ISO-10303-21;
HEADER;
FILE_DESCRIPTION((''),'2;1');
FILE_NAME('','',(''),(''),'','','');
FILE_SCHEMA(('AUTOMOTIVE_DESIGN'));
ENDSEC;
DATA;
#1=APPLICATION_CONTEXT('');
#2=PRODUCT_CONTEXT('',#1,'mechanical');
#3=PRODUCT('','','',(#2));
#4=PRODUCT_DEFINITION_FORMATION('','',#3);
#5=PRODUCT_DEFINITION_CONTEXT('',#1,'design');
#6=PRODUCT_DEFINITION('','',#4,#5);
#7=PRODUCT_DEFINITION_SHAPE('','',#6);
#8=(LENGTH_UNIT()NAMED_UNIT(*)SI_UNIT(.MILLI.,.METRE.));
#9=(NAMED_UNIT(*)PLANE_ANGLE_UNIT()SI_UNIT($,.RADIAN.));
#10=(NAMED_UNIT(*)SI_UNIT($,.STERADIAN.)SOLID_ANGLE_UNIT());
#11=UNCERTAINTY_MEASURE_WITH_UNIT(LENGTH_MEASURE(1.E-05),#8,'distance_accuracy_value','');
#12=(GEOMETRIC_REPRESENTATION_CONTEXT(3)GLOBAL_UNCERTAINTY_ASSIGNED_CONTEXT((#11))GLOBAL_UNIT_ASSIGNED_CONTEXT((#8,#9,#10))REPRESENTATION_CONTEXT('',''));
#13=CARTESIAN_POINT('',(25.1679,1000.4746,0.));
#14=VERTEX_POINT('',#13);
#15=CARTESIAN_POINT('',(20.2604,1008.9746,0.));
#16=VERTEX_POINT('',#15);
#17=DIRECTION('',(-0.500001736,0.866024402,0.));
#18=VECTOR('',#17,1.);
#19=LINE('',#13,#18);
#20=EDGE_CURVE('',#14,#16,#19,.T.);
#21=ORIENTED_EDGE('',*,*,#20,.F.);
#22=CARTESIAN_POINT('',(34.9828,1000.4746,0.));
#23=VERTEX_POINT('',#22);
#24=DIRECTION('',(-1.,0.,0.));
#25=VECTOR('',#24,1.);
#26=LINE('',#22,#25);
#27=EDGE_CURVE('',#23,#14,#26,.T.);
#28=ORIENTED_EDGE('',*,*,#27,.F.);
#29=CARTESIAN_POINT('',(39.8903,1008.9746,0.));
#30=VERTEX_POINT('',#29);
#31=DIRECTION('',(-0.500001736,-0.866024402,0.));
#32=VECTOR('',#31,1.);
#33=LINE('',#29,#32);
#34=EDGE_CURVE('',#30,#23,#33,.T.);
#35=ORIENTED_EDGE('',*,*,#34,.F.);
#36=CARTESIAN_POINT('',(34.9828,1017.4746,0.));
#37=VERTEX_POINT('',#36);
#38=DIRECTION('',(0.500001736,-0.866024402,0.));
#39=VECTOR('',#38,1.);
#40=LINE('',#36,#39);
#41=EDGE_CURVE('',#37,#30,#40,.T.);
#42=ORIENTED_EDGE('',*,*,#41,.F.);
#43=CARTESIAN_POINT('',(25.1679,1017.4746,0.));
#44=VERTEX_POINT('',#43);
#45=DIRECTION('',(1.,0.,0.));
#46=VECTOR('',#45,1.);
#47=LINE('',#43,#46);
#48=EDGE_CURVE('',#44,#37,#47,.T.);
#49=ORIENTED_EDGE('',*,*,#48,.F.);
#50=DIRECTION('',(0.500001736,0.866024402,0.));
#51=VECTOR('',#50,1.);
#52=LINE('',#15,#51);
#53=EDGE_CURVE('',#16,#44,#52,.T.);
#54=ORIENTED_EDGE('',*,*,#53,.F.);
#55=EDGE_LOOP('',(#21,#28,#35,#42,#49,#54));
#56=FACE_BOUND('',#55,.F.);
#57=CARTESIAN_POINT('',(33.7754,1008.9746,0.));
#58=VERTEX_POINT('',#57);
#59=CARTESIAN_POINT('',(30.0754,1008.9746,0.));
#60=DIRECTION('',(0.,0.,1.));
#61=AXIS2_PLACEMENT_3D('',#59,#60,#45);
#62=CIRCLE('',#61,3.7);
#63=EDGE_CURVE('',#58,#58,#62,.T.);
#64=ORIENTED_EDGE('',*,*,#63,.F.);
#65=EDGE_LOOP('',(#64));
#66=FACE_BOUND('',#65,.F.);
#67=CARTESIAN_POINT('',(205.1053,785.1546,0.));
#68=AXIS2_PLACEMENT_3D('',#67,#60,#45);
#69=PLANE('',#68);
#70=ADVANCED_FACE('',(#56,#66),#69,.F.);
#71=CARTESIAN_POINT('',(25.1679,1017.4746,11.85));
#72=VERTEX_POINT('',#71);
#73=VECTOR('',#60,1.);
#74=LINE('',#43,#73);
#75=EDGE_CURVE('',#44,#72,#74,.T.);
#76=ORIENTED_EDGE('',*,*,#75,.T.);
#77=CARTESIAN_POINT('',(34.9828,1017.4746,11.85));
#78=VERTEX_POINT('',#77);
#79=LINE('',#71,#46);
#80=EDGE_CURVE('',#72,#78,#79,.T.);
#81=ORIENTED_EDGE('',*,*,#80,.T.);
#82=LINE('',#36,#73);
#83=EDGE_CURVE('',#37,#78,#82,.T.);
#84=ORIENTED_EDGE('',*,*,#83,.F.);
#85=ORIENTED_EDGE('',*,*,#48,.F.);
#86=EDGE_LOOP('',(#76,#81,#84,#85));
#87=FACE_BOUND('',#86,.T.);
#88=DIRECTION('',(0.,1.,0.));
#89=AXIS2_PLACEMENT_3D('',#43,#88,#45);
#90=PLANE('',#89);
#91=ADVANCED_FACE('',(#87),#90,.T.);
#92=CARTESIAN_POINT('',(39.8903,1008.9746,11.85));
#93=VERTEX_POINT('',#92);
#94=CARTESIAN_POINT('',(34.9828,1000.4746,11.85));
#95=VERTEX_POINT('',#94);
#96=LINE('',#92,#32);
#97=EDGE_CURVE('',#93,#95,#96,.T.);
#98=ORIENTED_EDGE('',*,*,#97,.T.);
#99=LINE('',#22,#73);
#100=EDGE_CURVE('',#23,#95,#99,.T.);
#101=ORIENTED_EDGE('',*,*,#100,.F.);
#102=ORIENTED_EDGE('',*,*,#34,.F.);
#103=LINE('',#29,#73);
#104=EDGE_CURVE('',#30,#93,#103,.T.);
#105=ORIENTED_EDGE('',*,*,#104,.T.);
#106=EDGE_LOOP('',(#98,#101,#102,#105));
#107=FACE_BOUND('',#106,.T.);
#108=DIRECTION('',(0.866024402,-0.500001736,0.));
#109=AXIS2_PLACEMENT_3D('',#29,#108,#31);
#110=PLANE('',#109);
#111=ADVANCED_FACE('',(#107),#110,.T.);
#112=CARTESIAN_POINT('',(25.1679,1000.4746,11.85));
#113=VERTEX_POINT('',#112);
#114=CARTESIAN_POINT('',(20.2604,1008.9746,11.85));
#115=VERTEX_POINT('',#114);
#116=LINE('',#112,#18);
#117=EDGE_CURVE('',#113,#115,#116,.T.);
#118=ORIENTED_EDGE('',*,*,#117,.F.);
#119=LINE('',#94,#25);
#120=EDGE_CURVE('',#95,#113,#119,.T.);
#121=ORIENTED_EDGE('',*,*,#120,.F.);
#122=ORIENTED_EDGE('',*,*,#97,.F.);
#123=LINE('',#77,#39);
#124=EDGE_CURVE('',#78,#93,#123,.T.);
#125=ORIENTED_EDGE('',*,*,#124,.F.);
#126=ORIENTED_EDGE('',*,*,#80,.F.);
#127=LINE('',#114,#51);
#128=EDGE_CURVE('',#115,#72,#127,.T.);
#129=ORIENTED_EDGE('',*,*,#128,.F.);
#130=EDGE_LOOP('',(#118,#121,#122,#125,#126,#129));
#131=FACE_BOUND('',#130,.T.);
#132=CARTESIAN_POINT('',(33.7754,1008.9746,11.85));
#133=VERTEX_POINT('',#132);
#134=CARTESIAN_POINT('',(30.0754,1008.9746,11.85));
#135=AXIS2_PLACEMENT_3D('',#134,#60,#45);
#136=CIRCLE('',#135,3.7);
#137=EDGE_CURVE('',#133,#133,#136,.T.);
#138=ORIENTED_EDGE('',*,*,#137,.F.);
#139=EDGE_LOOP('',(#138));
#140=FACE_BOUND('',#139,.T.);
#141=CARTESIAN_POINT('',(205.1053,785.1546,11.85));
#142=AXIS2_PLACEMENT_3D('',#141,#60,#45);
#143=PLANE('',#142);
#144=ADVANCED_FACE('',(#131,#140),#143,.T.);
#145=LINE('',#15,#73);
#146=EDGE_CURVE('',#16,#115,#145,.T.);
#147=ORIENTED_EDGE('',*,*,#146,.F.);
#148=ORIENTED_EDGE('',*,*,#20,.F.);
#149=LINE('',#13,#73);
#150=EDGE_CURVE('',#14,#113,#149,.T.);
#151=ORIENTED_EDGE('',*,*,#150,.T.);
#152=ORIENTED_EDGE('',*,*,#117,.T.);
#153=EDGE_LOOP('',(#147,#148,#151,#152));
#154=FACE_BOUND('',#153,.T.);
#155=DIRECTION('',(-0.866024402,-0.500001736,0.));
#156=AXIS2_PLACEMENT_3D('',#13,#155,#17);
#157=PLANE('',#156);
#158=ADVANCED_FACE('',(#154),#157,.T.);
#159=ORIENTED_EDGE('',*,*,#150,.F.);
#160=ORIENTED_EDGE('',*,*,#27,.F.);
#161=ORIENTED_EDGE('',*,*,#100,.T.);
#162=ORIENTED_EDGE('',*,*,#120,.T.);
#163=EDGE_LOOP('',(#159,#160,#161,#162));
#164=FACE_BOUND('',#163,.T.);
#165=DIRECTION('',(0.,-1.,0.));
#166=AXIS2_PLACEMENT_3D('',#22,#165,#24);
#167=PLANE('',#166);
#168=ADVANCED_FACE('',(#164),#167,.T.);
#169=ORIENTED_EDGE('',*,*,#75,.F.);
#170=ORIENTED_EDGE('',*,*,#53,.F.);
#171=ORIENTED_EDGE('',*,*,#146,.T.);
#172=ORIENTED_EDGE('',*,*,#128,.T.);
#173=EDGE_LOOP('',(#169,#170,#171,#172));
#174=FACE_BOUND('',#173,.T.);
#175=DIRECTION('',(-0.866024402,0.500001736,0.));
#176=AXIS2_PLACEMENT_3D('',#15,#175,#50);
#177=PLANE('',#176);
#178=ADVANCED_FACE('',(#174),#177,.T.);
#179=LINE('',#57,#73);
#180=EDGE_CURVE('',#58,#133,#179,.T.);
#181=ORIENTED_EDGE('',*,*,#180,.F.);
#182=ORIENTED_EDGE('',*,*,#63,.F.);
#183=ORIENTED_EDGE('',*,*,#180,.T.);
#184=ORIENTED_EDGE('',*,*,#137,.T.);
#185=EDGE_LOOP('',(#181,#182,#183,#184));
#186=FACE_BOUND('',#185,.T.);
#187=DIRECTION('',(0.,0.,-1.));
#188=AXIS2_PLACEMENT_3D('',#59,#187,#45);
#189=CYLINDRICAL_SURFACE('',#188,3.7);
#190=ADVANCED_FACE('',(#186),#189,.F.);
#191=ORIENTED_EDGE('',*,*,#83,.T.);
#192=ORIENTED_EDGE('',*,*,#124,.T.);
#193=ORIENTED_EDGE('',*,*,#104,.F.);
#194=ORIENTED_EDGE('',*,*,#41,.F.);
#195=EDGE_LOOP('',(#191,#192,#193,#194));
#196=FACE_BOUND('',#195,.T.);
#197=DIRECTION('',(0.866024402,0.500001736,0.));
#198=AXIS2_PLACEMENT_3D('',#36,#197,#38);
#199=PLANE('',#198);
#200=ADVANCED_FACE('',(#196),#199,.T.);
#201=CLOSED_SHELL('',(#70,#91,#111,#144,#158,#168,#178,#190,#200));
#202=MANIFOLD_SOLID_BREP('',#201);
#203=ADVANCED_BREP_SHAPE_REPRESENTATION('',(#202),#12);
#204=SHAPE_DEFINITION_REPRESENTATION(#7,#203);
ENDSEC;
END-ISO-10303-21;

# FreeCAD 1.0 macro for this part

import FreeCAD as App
import Part
import Sketcher
from FreeCAD import Vector
Q = App.Units.Quantity


def add_polygon(sketch, points):
    """Adds a closed chain of lines whose ends are joined by coincident constraints."""
    first, n = sketch.GeometryCount, len(points)
    for a, b in zip(points, points[1:] + points[:1]):
        sketch.addGeometry(Part.LineSegment(App.Vector(*a, 0), App.Vector(*b, 0)), False)
    for i in range(n):
        sketch.addConstraint(Sketcher.Constraint("Coincident", first + i, 2, first + (i + 1) % n, 1))

doc = App.newDocument("Part")
body = doc.addObject("PartDesign::Body", "Body")

# Sketch on XY plane
sketch1 = doc.addObject("Sketcher::SketchObject", "Sketch")
body.addObject(sketch1)
sketch1.AttachmentSupport = (doc.XY_Plane, [""])
sketch1.MapMode = "FlatFace"
add_polygon(sketch1, [(25.1679, 1017.4746), (20.2604, 1008.9746), (25.1679, 1000.4746), (34.9828, 1000.4746), (39.8903, 1008.9746), (34.9828, 1017.4746)])  # lines 0-5
sketch1.addGeometry(Part.Circle(Vector(30.0754, 1008.9746, 0), Vector(0, 0, 1), 3.7), False)  # 6
sketch1.addConstraint(Sketcher.Constraint("Horizontal", 2))
sketch1.addConstraint(Sketcher.Constraint("Horizontal", 5))
sketch1.addConstraint(Sketcher.Constraint("Parallel", 0, 3))
sketch1.addConstraint(Sketcher.Constraint("Parallel", 1, 4))
sketch1.addConstraint(Sketcher.Constraint("Horizontal", 6, 3, 0, 2))
sketch1.addConstraint(Sketcher.Constraint("Horizontal", 0, 2, 3, 2))
sketch1.addConstraint(Sketcher.Constraint("Vertical", 2, 2, 4, 2))
sketch1.addConstraint(Sketcher.Constraint("Vertical", 1, 2, 5, 2))
sketch1.addConstraint(Sketcher.Constraint("Diameter", 6, 7.4))
sketch1.addConstraint(Sketcher.Constraint("DistanceY", 2, 2, 4, 2, 17.0))
sketch1.addConstraint(Sketcher.Constraint("Angle", 0, Q("-120 deg")))
sketch1.addConstraint(Sketcher.Constraint("DistanceX", 2, 1, 2, 2, 9.815))
sketch1.addConstraint(Sketcher.Constraint("DistanceX", -1, 1, 1, 2, 25.168))
sketch1.addConstraint(Sketcher.Constraint("DistanceX", 0, 2, 6, 3, 9.815))
sketch1.addConstraint(Sketcher.Constraint("DistanceY", -1, 1, 6, 3, 1008.9746))
pad1 = doc.addObject("PartDesign::Pad", "Pad")
body.addObject(pad1)
pad1.Profile = sketch1
pad1.Length = 11.85

doc.recompute()
